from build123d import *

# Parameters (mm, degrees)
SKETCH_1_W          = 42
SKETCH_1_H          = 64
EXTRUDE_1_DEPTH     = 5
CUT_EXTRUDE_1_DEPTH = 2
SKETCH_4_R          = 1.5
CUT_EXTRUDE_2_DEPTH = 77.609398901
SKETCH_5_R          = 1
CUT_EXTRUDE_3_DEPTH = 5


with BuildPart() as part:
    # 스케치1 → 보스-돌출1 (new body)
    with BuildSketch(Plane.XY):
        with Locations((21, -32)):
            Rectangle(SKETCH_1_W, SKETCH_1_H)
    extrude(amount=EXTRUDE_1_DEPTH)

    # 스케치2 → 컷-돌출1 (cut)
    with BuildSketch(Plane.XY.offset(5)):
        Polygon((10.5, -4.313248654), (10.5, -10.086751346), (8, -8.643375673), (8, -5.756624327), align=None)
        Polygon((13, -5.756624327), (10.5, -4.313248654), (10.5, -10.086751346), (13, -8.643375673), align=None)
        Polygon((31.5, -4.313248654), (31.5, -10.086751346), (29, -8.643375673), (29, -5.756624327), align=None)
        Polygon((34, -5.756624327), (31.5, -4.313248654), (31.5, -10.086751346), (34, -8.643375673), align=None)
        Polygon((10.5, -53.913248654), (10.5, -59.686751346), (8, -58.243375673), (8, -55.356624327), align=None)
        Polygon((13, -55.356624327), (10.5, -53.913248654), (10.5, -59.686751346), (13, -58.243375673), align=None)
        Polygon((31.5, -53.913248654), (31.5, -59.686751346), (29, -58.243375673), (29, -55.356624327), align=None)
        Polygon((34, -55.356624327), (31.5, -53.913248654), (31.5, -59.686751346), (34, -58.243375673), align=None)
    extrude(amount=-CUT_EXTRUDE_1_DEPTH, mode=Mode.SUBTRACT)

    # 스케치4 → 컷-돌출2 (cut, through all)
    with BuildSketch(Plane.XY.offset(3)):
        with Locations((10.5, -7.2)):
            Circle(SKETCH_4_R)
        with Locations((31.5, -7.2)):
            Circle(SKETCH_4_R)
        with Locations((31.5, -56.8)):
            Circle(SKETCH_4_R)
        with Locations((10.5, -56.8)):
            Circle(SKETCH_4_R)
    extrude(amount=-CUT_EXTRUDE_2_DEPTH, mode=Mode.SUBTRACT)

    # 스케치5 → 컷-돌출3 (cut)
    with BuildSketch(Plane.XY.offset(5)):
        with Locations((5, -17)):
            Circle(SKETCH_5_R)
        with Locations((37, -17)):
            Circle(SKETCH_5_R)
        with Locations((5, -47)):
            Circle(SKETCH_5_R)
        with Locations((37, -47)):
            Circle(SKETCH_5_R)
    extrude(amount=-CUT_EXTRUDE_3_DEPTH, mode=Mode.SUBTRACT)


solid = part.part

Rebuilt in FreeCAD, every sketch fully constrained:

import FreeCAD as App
import Part
import Sketcher
from FreeCAD import Vector
Q = App.Units.Quantity


def add_polygon(sketch, points):
    """Adds a closed chain of lines whose ends are joined by coincident constraints."""
    first, n = sketch.GeometryCount, len(points)
    for a, b in zip(points, points[1:] + points[:1]):
        sketch.addGeometry(Part.LineSegment(App.Vector(*a, 0), App.Vector(*b, 0)), False)
    for i in range(n):
        sketch.addConstraint(Sketcher.Constraint("Coincident", first + i, 2, first + (i + 1) % n, 1))

doc = App.newDocument("Part")
body = doc.addObject("PartDesign::Body", "Body")

# Sketch on XY plane
sketch1 = body.newObject("Sketcher::SketchObject", "Sketch")
sketch1.AttachmentSupport = (doc.getObject("XY_Plane"), [""])
sketch1.MapMode = "FlatFace"
add_polygon(sketch1, [(0, 0), (0, -64), (42, -64), (42, 0)])  # lines 0-3
sketch1.addConstraint(Sketcher.Constraint("Vertical", 0))
sketch1.addConstraint(Sketcher.Constraint("Horizontal", 1))
sketch1.addConstraint(Sketcher.Constraint("Vertical", 2))
sketch1.addConstraint(Sketcher.Constraint("Horizontal", 3))
sketch1.addConstraint(Sketcher.Constraint("Coincident", 3, 2, -1, 1))
sketch1.addConstraint(Sketcher.Constraint("DistanceX", 1, 1, 1, 2, Q("42 mm")))
sketch1.addConstraint(Sketcher.Constraint("DistanceY", 0, 2, 0, 1, Q("64 mm")))
pad1 = body.newObject("PartDesign::Pad", "Pad")
pad1.Profile = sketch1
pad1.Length = 5

# Sketch on XY plane
sketch2 = body.newObject("Sketcher::SketchObject", "Sketch001")
sketch2.AttachmentSupport = (doc.getObject("XY_Plane"), [""])
sketch2.MapMode = "FlatFace"
sketch2.AttachmentOffset = App.Placement(Vector(0, 0, 5), App.Rotation())
add_polygon(sketch2, [(8, -8.643376), (10.5, -10.086751), (13, -8.643376), (13, -5.756624), (10.5, -4.313249), (8, -5.756624)])  # lines 0-5
add_polygon(sketch2, [(29, -8.643376), (31.5, -10.086751), (34, -8.643376), (34, -5.756624), (31.5, -4.313249), (29, -5.756624)])  # lines 6-11
add_polygon(sketch2, [(8, -58.243376), (10.5, -59.686751), (13, -58.243376), (13, -55.356624), (10.5, -53.913249), (8, -55.356624)])  # lines 12-17
add_polygon(sketch2, [(29, -58.243376), (31.5, -59.686751), (34, -58.243376), (34, -55.356624), (31.5, -53.913249), (29, -55.356624)])  # lines 18-23
sketch2.addConstraint(Sketcher.Constraint("Vertical", 2))
sketch2.addConstraint(Sketcher.Constraint("Vertical", 5))
sketch2.addConstraint(Sketcher.Constraint("Vertical", 8))
sketch2.addConstraint(Sketcher.Constraint("Vertical", 11))
sketch2.addConstraint(Sketcher.Constraint("Vertical", 14))
sketch2.addConstraint(Sketcher.Constraint("Vertical", 17))
sketch2.addConstraint(Sketcher.Constraint("Vertical", 20))
sketch2.addConstraint(Sketcher.Constraint("Vertical", 23))
sketch2.addConstraint(Sketcher.Constraint("Parallel", 0, 3))
sketch2.addConstraint(Sketcher.Constraint("Parallel", 1, 4))
sketch2.addConstraint(Sketcher.Constraint("Parallel", 3, 6))
sketch2.addConstraint(Sketcher.Constraint("Parallel", 4, 7))
sketch2.addConstraint(Sketcher.Constraint("Parallel", 6, 9))
sketch2.addConstraint(Sketcher.Constraint("Parallel", 7, 10))
sketch2.addConstraint(Sketcher.Constraint("Parallel", 9, 12))
sketch2.addConstraint(Sketcher.Constraint("Parallel", 10, 13))
sketch2.addConstraint(Sketcher.Constraint("Parallel", 12, 15))
sketch2.addConstraint(Sketcher.Constraint("Parallel", 13, 16))
sketch2.addConstraint(Sketcher.Constraint("Parallel", 15, 18))
sketch2.addConstraint(Sketcher.Constraint("Parallel", 16, 19))
sketch2.addConstraint(Sketcher.Constraint("Parallel", 18, 21))
sketch2.addConstraint(Sketcher.Constraint("Parallel", 19, 22))
sketch2.addConstraint(Sketcher.Constraint("Horizontal", 2, 2, 4, 2))
sketch2.addConstraint(Sketcher.Constraint("Horizontal", 1, 2, 5, 2))
sketch2.addConstraint(Sketcher.Constraint("Horizontal", 0, 2, 6, 2))
sketch2.addConstraint(Sketcher.Constraint("Horizontal", 5, 2, 7, 2))
sketch2.addConstraint(Sketcher.Constraint("Horizontal", 4, 2, 8, 2))
sketch2.addConstraint(Sketcher.Constraint("Horizontal", 3, 2, 9, 2))
sketch2.addConstraint(Sketcher.Constraint("Horizontal", 8, 2, 10, 2))
sketch2.addConstraint(Sketcher.Constraint("Horizontal", 14, 2, 16, 2))
sketch2.addConstraint(Sketcher.Constraint("Horizontal", 13, 2, 17, 2))
sketch2.addConstraint(Sketcher.Constraint("Horizontal", 12, 2, 18, 2))
sketch2.addConstraint(Sketcher.Constraint("Horizontal", 17, 2, 19, 2))
sketch2.addConstraint(Sketcher.Constraint("Horizontal", 16, 2, 20, 2))
sketch2.addConstraint(Sketcher.Constraint("Horizontal", 15, 2, 21, 2))
sketch2.addConstraint(Sketcher.Constraint("Horizontal", 20, 2, 22, 2))
sketch2.addConstraint(Sketcher.Constraint("Vertical", 0, 2, 3, 2))
sketch2.addConstraint(Sketcher.Constraint("Vertical", 3, 2, 12, 2))
sketch2.addConstraint(Sketcher.Constraint("Vertical", 2, 2, 13, 2))
sketch2.addConstraint(Sketcher.Constraint("Vertical", 9, 2, 18, 2))
sketch2.addConstraint(Sketcher.Constraint("Equal", 11, 14))
sketch2.addConstraint(Sketcher.Constraint("Angle", 0, Q("-30 deg")))
sketch2.addConstraint(Sketcher.Constraint("DistanceX", -1, 1, 1, 2, Q("13 mm")))
sketch2.addConstraint(Sketcher.Constraint("DistanceX", -1, 1, 4, 2, Q("8 mm")))
sketch2.addConstraint(Sketcher.Constraint("DistanceX", -1, 1, 7, 2, Q("34 mm")))
sketch2.addConstraint(Sketcher.Constraint("DistanceY", 12, 2, 0, 2, Q("49.6 mm")))
sketch2.addConstraint(Sketcher.Constraint("DistanceY", 2, 1, 2, 2, Q("2.886751 mm")))
sketch2.addConstraint(Sketcher.Constraint("DistanceY", 0, 2, -1, 1, Q("10.086751 mm")))
pocket1 = body.newObject("PartDesign::Pocket", "Pocket")
pocket1.Profile = sketch2
pocket1.Length = 2

# Sketch on XY plane
sketch3 = body.newObject("Sketcher::SketchObject", "Sketch002")
sketch3.AttachmentSupport = (doc.getObject("XY_Plane"), [""])
sketch3.MapMode = "FlatFace"
sketch3.AttachmentOffset = App.Placement(Vector(0, 0, 3), App.Rotation())
sketch3.addGeometry(Part.Circle(Vector(10.5, -7.2, 0), Vector(0, 0, 1), 1.5), False)
sketch3.addGeometry(Part.Circle(Vector(31.5, -7.2, 0), Vector(0, 0, 1), 1.5), False)
sketch3.addGeometry(Part.Circle(Vector(31.5, -56.8, 0), Vector(0, 0, 1), 1.5), False)
sketch3.addGeometry(Part.Circle(Vector(10.5, -56.8, 0), Vector(0, 0, 1), 1.5), False)
sketch3.addConstraint(Sketcher.Constraint("Equal", 0, 1))
sketch3.addConstraint(Sketcher.Constraint("Equal", 1, 2))
sketch3.addConstraint(Sketcher.Constraint("Equal", 2, 3))
sketch3.addConstraint(Sketcher.Constraint("Horizontal", 0, 3, 1, 3))
sketch3.addConstraint(Sketcher.Constraint("Horizontal", 2, 3, 3, 3))
sketch3.addConstraint(Sketcher.Constraint("Vertical", 1, 3, 2, 3))
sketch3.addConstraint(Sketcher.Constraint("Vertical", 0, 3, 3, 3))
sketch3.addConstraint(Sketcher.Constraint("Diameter", 0, Q("3 mm")))
sketch3.addConstraint(Sketcher.Constraint("DistanceX", 0, 3, 1, 3, Q("21 mm")))
sketch3.addConstraint(Sketcher.Constraint("DistanceX", -1, 1, 0, 3, Q("10.5 mm")))
sketch3.addConstraint(Sketcher.Constraint("DistanceY", 0, 3, -1, 1, Q("7.2 mm")))
sketch3.addConstraint(Sketcher.Constraint("DistanceY", 2, 3, -1, 1, Q("56.8 mm")))
pocket2 = body.newObject("PartDesign::Pocket", "Pocket001")
pocket2.Profile = sketch3
pocket2.Type = "ThroughAll"

# Sketch on XY plane
sketch4 = body.newObject("Sketcher::SketchObject", "Sketch003")
sketch4.AttachmentSupport = (doc.getObject("XY_Plane"), [""])
sketch4.MapMode = "FlatFace"
sketch4.AttachmentOffset = App.Placement(Vector(0, 0, 5), App.Rotation())
sketch4.addGeometry(Part.Circle(Vector(5, -17, 0), Vector(0, 0, 1), 1), False)
sketch4.addGeometry(Part.Circle(Vector(37, -17, 0), Vector(0, 0, 1), 1), False)
sketch4.addGeometry(Part.Circle(Vector(5, -47, 0), Vector(0, 0, 1), 1), False)
sketch4.addGeometry(Part.Circle(Vector(37, -47, 0), Vector(0, 0, 1), 1), False)
sketch4.addConstraint(Sketcher.Constraint("Equal", 0, 1))
sketch4.addConstraint(Sketcher.Constraint("Equal", 1, 2))
sketch4.addConstraint(Sketcher.Constraint("Equal", 2, 3))
sketch4.addConstraint(Sketcher.Constraint("Horizontal", 0, 3, 1, 3))
sketch4.addConstraint(Sketcher.Constraint("Horizontal", 2, 3, 3, 3))
sketch4.addConstraint(Sketcher.Constraint("Vertical", 0, 3, 2, 3))
sketch4.addConstraint(Sketcher.Constraint("Vertical", 1, 3, 3, 3))
sketch4.addConstraint(Sketcher.Constraint("Diameter", 0, Q("2 mm")))
sketch4.addConstraint(Sketcher.Constraint("DistanceX", -1, 1, 0, 3, Q("5 mm")))
sketch4.addConstraint(Sketcher.Constraint("DistanceY", 0, 3, -1, 1, Q("17 mm")))
sketch4.addConstraint(Sketcher.Constraint("DistanceX", -1, 1, 1, 3, Q("37 mm")))
sketch4.addConstraint(Sketcher.Constraint("DistanceY", 2, 3, -1, 1, Q("47 mm")))
pocket3 = body.newObject("PartDesign::Pocket", "Pocket002")
pocket3.Profile = sketch4
pocket3.Length = 5

doc.recompute()
